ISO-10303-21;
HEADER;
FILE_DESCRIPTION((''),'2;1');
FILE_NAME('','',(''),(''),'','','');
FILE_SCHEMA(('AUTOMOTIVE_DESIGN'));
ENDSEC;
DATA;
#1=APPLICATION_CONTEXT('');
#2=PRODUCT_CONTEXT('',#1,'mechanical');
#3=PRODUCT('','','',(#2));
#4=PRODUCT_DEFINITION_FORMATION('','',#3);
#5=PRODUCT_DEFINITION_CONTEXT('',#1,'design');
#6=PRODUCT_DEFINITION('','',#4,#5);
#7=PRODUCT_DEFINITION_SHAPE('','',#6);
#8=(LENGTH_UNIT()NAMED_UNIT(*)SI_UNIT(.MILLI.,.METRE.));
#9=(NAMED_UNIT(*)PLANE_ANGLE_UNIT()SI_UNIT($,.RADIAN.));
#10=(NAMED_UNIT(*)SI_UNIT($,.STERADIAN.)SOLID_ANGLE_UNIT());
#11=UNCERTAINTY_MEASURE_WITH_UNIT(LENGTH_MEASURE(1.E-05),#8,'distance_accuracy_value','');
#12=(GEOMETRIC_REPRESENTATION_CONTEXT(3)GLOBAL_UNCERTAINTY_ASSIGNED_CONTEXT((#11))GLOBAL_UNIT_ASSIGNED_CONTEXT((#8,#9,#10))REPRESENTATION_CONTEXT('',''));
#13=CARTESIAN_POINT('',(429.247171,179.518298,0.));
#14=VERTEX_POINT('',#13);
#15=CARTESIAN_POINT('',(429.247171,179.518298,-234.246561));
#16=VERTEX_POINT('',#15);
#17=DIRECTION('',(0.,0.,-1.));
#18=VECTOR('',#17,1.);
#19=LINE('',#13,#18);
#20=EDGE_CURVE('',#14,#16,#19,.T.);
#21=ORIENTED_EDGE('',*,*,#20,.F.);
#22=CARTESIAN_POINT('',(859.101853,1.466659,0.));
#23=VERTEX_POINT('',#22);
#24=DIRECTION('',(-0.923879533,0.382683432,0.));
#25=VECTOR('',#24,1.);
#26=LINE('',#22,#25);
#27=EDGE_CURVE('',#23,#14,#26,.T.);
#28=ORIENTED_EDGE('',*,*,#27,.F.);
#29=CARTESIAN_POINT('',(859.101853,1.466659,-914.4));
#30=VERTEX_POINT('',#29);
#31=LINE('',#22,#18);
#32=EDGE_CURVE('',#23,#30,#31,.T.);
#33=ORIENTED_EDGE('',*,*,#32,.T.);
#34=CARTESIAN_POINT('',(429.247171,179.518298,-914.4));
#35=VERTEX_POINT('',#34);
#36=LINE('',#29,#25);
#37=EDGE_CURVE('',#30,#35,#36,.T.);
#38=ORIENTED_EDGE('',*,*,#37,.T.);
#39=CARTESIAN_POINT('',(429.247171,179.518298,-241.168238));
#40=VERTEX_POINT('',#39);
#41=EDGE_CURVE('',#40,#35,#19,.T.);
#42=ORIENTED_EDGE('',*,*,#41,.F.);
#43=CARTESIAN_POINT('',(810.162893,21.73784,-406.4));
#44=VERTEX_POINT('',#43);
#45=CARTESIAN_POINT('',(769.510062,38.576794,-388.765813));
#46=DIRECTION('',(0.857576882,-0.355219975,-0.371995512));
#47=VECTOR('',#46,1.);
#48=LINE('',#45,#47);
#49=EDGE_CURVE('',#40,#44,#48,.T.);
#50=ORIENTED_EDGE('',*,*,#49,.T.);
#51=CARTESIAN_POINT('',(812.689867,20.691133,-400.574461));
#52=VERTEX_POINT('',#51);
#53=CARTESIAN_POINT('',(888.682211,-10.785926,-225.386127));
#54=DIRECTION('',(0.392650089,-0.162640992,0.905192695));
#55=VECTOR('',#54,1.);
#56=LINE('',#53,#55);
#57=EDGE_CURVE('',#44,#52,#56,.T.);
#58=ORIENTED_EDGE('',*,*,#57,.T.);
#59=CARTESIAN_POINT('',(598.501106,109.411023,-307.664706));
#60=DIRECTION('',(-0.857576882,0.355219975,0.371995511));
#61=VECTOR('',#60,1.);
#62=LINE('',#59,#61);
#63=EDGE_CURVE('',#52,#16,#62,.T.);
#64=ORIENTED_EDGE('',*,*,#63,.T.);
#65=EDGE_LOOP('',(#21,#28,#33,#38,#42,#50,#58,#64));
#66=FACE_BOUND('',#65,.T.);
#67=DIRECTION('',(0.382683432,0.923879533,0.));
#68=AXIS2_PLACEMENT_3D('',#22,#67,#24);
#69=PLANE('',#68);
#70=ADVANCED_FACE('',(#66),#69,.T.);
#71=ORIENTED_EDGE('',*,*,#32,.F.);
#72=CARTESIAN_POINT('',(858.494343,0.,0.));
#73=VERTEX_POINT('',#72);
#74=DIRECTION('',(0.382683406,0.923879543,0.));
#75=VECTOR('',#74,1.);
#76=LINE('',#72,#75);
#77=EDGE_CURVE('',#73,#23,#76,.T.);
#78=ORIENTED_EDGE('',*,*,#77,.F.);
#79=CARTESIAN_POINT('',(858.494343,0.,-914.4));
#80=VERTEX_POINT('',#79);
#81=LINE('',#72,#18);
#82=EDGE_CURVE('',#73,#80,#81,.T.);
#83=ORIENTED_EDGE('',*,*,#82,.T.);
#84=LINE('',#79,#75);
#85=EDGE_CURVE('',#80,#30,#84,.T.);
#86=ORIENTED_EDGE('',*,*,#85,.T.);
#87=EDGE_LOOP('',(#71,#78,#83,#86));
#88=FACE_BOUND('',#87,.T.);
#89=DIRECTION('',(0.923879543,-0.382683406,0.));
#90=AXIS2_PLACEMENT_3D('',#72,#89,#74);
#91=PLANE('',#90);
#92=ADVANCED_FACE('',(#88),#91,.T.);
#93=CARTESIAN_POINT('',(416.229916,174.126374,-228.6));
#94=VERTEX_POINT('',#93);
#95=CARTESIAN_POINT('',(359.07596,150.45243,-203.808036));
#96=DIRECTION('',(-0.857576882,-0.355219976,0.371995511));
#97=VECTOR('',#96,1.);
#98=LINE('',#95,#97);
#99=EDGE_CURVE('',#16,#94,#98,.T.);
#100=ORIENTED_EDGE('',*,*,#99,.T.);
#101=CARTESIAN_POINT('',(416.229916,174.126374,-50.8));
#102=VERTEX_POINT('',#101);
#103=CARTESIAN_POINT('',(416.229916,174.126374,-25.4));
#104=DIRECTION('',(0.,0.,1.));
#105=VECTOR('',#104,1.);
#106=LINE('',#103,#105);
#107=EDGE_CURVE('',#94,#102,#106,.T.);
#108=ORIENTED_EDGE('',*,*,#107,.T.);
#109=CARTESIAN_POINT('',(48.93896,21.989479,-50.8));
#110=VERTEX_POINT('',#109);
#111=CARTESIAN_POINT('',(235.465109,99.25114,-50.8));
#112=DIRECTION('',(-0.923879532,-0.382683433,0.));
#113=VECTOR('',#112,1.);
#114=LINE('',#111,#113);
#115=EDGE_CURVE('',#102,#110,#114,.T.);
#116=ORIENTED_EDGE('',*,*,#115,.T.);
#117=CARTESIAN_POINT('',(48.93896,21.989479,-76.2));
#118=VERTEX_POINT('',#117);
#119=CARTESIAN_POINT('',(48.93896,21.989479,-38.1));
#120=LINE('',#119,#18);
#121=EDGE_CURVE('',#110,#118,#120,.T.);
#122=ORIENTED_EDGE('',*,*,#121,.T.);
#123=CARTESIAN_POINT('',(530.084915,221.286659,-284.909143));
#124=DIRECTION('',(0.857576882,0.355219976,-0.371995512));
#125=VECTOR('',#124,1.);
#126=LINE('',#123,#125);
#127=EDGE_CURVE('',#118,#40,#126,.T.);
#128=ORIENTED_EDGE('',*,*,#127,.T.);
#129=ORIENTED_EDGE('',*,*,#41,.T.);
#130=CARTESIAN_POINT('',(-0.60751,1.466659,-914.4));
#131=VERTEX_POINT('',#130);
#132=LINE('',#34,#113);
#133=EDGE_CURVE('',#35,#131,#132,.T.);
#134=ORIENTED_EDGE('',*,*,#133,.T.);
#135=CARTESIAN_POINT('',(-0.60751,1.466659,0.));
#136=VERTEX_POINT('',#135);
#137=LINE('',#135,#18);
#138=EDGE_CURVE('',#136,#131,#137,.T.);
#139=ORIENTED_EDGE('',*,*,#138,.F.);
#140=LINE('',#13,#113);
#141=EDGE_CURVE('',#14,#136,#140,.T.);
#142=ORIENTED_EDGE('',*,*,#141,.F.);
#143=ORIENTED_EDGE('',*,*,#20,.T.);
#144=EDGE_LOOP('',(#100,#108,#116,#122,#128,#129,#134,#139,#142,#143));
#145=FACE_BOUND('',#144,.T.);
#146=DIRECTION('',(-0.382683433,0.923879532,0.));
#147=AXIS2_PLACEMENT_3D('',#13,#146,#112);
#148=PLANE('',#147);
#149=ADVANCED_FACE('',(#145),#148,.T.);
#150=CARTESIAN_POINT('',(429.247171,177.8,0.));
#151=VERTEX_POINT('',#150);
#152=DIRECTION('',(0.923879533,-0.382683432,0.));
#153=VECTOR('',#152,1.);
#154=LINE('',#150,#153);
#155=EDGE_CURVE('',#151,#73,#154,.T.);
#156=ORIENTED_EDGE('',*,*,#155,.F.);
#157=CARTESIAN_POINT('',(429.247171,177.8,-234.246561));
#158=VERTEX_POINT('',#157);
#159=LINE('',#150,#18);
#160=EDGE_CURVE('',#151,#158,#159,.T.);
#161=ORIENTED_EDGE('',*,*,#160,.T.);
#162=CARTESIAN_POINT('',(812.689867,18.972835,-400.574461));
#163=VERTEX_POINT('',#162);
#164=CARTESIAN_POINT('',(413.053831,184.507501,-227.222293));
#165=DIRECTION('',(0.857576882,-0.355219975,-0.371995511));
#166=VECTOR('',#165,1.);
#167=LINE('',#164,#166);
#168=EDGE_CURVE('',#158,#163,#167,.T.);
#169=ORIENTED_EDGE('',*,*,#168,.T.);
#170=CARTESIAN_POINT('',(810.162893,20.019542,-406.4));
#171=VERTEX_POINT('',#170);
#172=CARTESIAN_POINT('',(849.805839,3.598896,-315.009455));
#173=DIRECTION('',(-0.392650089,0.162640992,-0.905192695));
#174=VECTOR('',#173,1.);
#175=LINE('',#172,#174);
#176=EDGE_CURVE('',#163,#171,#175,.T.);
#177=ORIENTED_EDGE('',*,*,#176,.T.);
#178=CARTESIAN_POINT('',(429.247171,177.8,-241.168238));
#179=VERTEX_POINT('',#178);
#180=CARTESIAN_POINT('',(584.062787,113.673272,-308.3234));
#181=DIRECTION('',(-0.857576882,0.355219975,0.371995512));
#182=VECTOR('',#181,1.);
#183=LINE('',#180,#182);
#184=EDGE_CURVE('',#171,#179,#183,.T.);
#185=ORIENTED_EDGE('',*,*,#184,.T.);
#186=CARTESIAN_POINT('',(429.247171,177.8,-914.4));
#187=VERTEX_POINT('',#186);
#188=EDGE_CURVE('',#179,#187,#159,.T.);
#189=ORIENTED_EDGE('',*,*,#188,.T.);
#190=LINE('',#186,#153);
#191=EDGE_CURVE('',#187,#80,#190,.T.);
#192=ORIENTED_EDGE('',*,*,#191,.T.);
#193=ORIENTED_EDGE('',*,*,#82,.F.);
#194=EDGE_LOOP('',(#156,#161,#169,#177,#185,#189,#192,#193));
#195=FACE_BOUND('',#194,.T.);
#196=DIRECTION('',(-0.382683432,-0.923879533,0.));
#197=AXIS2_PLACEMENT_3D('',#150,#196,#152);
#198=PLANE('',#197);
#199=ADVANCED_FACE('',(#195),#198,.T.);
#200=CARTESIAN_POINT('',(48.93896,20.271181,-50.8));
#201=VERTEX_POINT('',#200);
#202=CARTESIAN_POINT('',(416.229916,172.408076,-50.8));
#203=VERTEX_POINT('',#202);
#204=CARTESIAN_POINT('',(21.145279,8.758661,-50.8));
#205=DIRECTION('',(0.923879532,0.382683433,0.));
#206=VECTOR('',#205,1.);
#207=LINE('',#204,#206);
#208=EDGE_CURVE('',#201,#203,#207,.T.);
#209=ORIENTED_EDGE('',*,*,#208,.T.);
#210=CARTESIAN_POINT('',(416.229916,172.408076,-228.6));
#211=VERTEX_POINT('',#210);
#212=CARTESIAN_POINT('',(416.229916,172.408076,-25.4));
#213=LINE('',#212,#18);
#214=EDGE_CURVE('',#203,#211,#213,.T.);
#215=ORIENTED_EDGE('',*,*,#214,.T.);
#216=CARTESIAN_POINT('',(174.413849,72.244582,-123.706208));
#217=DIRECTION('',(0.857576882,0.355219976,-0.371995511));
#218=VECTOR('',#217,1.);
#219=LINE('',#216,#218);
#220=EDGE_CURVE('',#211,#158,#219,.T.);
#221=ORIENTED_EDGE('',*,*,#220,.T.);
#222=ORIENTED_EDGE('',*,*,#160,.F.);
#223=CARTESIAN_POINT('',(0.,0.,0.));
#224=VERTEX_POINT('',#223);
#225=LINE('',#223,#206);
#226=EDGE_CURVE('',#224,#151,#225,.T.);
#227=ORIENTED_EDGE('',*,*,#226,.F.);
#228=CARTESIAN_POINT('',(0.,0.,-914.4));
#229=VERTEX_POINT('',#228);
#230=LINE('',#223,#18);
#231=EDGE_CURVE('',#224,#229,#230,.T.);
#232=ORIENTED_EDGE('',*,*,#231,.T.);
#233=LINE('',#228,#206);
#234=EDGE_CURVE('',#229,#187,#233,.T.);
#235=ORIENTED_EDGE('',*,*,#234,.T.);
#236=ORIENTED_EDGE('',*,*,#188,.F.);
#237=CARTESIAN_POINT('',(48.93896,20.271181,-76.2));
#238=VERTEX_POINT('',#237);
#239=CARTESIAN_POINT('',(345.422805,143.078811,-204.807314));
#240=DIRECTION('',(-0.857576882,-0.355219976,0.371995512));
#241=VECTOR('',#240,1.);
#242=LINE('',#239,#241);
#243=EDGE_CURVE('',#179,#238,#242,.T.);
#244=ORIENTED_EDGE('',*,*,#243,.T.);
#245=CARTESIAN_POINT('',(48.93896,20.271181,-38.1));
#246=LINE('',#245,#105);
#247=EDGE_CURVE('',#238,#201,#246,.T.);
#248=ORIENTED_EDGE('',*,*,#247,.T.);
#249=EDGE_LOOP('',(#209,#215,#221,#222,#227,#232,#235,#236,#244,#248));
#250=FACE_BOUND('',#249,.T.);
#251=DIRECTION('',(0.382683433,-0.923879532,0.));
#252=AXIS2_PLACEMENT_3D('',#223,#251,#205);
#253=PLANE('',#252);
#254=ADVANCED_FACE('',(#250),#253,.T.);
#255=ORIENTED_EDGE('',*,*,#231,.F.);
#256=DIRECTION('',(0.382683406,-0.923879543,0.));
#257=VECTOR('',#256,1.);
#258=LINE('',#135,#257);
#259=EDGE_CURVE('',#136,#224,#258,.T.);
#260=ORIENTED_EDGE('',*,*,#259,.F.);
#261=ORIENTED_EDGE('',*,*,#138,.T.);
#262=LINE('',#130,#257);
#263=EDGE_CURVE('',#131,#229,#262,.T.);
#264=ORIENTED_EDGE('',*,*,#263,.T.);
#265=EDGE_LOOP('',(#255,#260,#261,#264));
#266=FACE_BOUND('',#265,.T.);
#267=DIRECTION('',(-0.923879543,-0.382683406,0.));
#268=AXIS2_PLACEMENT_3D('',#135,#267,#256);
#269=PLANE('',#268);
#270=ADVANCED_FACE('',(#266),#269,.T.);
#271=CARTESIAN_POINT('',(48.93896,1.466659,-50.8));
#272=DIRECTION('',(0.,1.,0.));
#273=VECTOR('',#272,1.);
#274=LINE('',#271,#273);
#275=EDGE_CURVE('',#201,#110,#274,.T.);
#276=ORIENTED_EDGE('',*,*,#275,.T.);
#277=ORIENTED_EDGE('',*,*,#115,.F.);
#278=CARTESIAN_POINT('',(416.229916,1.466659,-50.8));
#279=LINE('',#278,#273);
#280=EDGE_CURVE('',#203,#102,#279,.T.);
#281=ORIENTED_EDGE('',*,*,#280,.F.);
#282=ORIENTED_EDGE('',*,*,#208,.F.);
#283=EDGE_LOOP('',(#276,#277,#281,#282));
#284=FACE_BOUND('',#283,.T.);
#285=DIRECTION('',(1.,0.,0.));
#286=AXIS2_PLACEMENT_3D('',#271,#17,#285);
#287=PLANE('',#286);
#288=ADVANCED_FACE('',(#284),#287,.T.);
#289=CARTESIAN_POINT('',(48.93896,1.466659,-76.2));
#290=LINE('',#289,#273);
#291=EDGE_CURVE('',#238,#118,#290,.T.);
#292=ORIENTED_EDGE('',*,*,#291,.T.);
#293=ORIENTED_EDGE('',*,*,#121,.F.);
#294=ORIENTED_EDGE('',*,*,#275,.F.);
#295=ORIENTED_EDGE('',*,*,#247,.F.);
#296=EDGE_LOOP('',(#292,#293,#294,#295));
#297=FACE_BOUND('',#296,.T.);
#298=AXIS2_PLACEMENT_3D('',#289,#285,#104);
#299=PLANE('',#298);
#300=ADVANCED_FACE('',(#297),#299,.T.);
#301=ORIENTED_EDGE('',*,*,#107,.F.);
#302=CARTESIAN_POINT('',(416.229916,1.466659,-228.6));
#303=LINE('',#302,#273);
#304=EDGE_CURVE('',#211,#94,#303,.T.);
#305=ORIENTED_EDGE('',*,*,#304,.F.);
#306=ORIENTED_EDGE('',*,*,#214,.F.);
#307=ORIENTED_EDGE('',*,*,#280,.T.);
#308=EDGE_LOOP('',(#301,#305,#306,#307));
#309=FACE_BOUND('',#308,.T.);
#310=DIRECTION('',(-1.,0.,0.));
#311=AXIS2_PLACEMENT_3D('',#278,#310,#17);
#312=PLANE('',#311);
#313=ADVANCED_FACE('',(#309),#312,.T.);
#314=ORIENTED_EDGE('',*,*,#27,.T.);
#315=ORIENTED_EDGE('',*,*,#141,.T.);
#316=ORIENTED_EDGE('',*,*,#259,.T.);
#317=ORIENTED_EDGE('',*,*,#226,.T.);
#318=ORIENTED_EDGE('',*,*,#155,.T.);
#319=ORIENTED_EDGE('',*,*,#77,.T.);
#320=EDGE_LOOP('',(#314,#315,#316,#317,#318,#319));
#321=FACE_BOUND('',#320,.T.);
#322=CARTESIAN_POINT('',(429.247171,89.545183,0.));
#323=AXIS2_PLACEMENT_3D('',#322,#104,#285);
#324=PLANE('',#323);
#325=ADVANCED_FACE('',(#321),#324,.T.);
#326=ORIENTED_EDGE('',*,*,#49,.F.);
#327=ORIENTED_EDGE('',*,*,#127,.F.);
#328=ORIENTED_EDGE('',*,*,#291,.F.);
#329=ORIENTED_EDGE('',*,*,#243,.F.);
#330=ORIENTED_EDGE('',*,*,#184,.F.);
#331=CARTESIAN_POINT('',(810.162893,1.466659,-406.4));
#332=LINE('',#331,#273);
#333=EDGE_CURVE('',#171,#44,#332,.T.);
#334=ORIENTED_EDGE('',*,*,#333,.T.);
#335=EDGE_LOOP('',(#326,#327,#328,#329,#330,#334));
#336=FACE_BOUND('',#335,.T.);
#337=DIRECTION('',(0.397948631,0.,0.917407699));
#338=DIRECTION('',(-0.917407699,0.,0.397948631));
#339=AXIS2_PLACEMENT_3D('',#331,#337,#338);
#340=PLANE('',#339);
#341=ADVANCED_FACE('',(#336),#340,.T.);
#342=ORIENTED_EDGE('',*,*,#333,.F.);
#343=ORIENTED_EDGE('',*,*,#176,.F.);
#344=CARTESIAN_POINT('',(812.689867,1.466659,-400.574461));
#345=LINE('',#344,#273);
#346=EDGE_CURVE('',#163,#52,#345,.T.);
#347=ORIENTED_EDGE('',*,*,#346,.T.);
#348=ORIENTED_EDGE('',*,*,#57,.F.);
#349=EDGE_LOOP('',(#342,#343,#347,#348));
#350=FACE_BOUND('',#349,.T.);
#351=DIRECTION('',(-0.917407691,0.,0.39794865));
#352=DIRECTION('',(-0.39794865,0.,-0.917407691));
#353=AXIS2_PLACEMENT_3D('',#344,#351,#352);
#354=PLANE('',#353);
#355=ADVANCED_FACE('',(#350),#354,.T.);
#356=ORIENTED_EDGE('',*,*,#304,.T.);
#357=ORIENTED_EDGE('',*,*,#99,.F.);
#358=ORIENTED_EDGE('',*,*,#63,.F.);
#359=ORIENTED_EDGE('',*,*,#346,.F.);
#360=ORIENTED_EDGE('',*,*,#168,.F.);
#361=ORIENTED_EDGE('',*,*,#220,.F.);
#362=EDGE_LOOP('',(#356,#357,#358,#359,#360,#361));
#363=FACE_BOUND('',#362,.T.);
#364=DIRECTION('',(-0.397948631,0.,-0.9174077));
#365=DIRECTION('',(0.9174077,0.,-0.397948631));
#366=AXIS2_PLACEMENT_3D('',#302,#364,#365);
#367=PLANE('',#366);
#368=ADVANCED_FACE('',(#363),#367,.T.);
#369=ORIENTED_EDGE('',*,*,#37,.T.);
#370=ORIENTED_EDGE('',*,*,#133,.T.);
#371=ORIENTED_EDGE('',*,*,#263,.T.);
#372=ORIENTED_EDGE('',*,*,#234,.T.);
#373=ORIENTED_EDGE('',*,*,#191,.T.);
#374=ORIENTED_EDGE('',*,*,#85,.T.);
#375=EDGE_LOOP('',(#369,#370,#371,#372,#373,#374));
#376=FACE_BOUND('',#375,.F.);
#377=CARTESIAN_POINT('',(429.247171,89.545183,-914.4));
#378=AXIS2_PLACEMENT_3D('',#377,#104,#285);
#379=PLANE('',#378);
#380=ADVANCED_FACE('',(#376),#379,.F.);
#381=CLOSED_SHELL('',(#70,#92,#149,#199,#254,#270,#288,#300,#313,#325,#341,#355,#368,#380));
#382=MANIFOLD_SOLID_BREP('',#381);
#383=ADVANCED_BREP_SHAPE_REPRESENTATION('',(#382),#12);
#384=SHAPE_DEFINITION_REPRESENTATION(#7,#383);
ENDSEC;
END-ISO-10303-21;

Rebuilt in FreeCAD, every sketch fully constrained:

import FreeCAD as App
import Part
import Sketcher

V = App.Vector
Q = App.Units.Quantity

doc = App.newDocument("Part")
params = doc.addObject("Spreadsheet::Sheet", "Params")
for row, (alias, value) in enumerate([
    ("sketch1_length", "0.0625 in"),
    ("pad1_length", "36 in"),
    ("sketch2_height", "1 in"),
    ("sketch2_height2", "7 in"),
    ("sketch2_length", "0.25 in"),
], start=1):
    params.set(f"A{row}", alias)
    params.set(f"B{row}", "=" + value)
    params.setAlias(f"B{row}", alias)

body = doc.addObject("PartDesign::Body", "Body")

# Sketch on XY plane
sketch1 = doc.addObject("Sketcher::SketchObject", "Sketch")
body.addObject(sketch1)
sketch1.AttachmentSupport = (doc.XY_Plane, [""])
sketch1.MapMode = "FlatFace"
sketch1.addGeometry([
    Part.LineSegment(V(-0.6, 1.5, 0), V(0, 0, 0)),  # 0
    Part.LineSegment(V(0, 0, 0), V(429.2, 177.8, 0)),  # 1
    Part.LineSegment(V(429.2, 177.8, 0), V(858.5, 0, 0)),  # 2
    Part.LineSegment(V(858.5, 0, 0), V(859.1, 1.5, 0)),  # 3
    Part.LineSegment(V(859.1, 1.5, 0), V(429.2, 179.5, 0)),  # 4
    Part.LineSegment(V(429.2, 179.5, 0), V(-0.6, 1.5, 0)),  # 5
], False)
sketch1.addConstraint([
    Sketcher.Constraint("Coincident", 0, 2, 1, 1),
    Sketcher.Constraint("Coincident", 1, 2, 2, 1),
    Sketcher.Constraint("Coincident", 2, 2, 3, 1),
    Sketcher.Constraint("Coincident", 3, 2, 4, 1),
    Sketcher.Constraint("Coincident", 4, 2, 5, 1),
    Sketcher.Constraint("Coincident", 5, 2, 0, 1),
    Sketcher.Constraint("Coincident", 0, 2, -1, 1),
    Sketcher.Constraint("PointOnObject", 2, 2, -1),
    Sketcher.Constraint("Perpendicular", 0, 1),
    Sketcher.Constraint("Perpendicular", 2, 3),
    Sketcher.Constraint("Perpendicular", 3, 4),
    Sketcher.Constraint("Parallel", 1, 5),
    Sketcher.Constraint("Horizontal", 3, 2, 5, 2),
    Sketcher.Constraint("Equal", 1, 2),
    Sketcher.Constraint("DistanceY", -1, 1, 1, 2, Q("7 in")),
    Sketcher.Constraint("Angle", 1, Q("22.5 deg")),
    Sketcher.Constraint("Distance", 0, Q("0.0625 in")),
])
sketch1.setExpression("Constraints[16]", "Params.sketch1_length")
pad1 = doc.addObject("PartDesign::Pad", "Pad")
body.addObject(pad1)
pad1.Profile = sketch1
pad1.setExpression("Length", "Params.pad1_length")
pad1.Reversed = True

# Sketch on XZ plane
sketch2 = doc.addObject("Sketcher::SketchObject", "Sketch001")
body.addObject(sketch2)
sketch2.AttachmentSupport = (doc.XZ_Plane, [""])
sketch2.MapMode = "FlatFace"
sketch2.AttachmentOffset = App.Placement(V(0, 0, -1.466659), App.Rotation())
sketch2.addGeometry([
    Part.LineSegment(V(810, -406, 0), V(49, -76, 0)),  # 0
    Part.LineSegment(V(49, -76, 0), V(49, -51, 0)),  # 1
    Part.LineSegment(V(49, -51, 0), V(416, -51, 0)),  # 2
    Part.LineSegment(V(416, -51, 0), V(416, -229, 0)),  # 3
    Part.LineSegment(V(416, -229, 0), V(813, -401, 0)),  # 4
    Part.LineSegment(V(813, -401, 0), V(810, -406, 0)),  # 5
], False)
sketch2.addConstraint([
    Sketcher.Constraint("Coincident", 0, 2, 1, 1),
    Sketcher.Constraint("Coincident", 1, 2, 2, 1),
    Sketcher.Constraint("Coincident", 2, 2, 3, 1),
    Sketcher.Constraint("Coincident", 3, 2, 4, 1),
    Sketcher.Constraint("Coincident", 4, 2, 5, 1),
    Sketcher.Constraint("Coincident", 5, 2, 0, 1),
    Sketcher.Constraint("Vertical", 1),
    Sketcher.Constraint("Horizontal", 2),
    Sketcher.Constraint("Vertical", 3),
    Sketcher.Constraint("Parallel", 0, 4),
    Sketcher.Constraint("Perpendicular", 4, 5),
    Sketcher.Constraint("DistanceY", 1, 1, 1, 2, Q("1 in")),
    Sketcher.Constraint("DistanceY", 3, 2, 3, 1, Q("7 in")),
    Sketcher.Constraint("DistanceY", 0, 2, -1, 1, Q("3 in")),
    Sketcher.Constraint("DistanceY", 5, 2, -1, 1, Q("16 in")),
    Sketcher.Constraint("Distance", 5, Q("0.25 in")),
    Sketcher.Constraint("Angle", 0, Q("156.55 deg")),
    Sketcher.Constraint("DistanceX", -1, 1, 0, 2, Q("48.93896 mm")),
])
sketch2.setExpression("Constraints[11]", "Params.sketch2_height")
sketch2.setExpression("Constraints[12]", "Params.sketch2_height2")
sketch2.setExpression("Constraints[15]", "Params.sketch2_length")
pocket1 = doc.addObject("PartDesign::Pocket", "Pocket")
body.addObject(pocket1)
pocket1.Profile = sketch2
pocket1.Type = "ThroughAll"

doc.recompute()
